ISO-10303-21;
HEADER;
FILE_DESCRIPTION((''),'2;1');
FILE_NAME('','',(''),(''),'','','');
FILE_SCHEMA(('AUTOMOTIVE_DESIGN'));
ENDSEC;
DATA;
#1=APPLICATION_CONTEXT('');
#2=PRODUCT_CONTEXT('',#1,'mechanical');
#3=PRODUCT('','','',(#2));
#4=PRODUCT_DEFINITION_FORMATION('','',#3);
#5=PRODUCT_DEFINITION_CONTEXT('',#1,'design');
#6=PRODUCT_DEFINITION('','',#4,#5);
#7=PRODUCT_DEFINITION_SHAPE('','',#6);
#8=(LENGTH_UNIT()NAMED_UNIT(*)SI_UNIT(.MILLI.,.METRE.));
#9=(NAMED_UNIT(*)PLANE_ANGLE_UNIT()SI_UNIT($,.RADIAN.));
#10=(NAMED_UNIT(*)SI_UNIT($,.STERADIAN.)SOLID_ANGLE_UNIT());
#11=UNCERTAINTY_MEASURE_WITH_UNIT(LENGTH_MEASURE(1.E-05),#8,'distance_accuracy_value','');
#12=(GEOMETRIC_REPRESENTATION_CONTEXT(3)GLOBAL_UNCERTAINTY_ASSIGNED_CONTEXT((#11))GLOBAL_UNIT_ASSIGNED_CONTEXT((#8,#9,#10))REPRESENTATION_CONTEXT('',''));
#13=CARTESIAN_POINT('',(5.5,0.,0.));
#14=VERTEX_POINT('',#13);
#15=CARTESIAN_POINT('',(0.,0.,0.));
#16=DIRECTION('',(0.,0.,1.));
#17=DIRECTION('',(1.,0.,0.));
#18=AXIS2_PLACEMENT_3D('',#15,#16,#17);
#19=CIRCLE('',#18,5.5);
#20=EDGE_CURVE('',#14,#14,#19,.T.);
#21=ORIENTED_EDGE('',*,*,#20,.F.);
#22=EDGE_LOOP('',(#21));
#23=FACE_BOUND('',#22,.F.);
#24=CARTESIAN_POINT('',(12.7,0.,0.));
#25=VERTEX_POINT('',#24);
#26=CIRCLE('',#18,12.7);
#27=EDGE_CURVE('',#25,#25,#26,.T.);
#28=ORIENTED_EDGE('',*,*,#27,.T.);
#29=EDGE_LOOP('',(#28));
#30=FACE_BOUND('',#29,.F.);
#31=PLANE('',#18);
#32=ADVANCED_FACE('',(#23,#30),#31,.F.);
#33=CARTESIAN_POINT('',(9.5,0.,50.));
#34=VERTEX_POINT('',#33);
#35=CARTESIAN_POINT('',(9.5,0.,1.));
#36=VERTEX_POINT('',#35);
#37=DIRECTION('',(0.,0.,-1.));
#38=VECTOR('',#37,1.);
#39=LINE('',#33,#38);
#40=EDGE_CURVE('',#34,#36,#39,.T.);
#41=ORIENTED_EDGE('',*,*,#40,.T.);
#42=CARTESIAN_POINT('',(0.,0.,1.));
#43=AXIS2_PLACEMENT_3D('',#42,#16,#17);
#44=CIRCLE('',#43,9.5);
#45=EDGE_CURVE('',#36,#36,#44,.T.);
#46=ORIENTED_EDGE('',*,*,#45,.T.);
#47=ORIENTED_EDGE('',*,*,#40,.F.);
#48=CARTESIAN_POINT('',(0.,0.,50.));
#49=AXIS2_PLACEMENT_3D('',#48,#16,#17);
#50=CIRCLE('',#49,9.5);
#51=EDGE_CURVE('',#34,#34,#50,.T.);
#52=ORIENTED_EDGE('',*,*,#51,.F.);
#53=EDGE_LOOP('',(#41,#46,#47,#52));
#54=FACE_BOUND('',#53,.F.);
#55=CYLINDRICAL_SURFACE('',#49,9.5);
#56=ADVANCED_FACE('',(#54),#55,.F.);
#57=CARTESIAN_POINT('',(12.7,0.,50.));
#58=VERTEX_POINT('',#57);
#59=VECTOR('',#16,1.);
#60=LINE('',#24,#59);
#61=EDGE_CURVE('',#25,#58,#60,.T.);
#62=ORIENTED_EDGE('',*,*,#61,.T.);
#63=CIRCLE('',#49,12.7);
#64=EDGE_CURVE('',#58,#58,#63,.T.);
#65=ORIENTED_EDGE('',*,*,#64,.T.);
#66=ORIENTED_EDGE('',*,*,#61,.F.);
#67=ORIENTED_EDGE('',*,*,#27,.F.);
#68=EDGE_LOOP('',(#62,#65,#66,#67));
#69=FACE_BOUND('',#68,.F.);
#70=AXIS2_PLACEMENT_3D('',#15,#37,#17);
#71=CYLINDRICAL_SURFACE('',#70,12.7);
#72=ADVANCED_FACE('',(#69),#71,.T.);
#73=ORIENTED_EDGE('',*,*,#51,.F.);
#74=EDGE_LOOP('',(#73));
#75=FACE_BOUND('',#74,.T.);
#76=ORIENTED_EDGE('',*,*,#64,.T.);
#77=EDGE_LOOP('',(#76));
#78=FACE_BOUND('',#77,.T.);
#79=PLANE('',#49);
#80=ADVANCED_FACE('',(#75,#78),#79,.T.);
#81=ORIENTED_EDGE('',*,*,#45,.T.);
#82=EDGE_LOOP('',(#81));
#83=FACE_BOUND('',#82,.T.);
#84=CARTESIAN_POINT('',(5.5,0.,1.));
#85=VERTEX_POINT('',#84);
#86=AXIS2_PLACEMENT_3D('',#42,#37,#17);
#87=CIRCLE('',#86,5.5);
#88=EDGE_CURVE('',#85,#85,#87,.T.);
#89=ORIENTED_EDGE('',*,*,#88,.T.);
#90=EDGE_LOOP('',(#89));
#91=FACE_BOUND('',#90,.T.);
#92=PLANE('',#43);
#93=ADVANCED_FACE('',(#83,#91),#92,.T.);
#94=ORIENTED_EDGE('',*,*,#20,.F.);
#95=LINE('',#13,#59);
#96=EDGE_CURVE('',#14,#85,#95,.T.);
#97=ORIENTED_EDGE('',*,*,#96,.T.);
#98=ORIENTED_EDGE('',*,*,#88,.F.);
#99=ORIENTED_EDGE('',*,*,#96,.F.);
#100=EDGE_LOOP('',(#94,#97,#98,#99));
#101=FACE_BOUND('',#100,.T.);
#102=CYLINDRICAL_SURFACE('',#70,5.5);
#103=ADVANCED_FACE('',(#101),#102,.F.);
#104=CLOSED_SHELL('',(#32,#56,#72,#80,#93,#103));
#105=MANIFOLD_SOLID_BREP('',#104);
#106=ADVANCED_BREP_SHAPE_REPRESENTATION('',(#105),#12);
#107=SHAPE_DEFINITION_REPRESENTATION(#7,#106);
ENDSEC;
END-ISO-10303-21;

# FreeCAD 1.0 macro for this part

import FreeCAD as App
import Part
import Sketcher

V = App.Vector

doc = App.newDocument("Part")
body = doc.addObject("PartDesign::Body", "Body")

# Sketch on XY plane
sketch1 = doc.addObject("Sketcher::SketchObject", "Sketch")
body.addObject(sketch1)
sketch1.AttachmentSupport = (doc.XY_Plane, [""])
sketch1.MapMode = "FlatFace"
sketch1.addGeometry([
    Part.Circle(V(0, 0, 0), V(0, 0, 1), 13),
    Part.Circle(V(0, 0, 0), V(0, 0, 1), 6),
], False)
sketch1.addConstraint([
    Sketcher.Constraint("Coincident", 0, 3, -1, 1),
    Sketcher.Constraint("Coincident", 1, 3, -1, 1),
    Sketcher.Constraint("Diameter", 1, 11.0),
    Sketcher.Constraint("Diameter", 0, 25.4),
])
pad1 = doc.addObject("PartDesign::Pad", "Pad")
body.addObject(pad1)
pad1.Profile = sketch1
pad1.Length = 50

# Sketch on XY plane
sketch2 = doc.addObject("Sketcher::SketchObject", "Sketch001")
body.addObject(sketch2)
sketch2.AttachmentSupport = (doc.XY_Plane, [""])
sketch2.MapMode = "FlatFace"
sketch2.AttachmentOffset = App.Placement(V(0, 0, 50), App.Rotation())
sketch2.addGeometry(Part.Circle(V(0, 0, 0), V(0, 0, 1), 10), False)
sketch2.addConstraint([
    Sketcher.Constraint("Coincident", 0, 3, -1, 1),
    Sketcher.Constraint("Diameter", 0, 19.0),
])
pocket1 = doc.addObject("PartDesign::Pocket", "Pocket")
body.addObject(pocket1)
pocket1.Profile = sketch2
pocket1.Length = 49

doc.recompute()
